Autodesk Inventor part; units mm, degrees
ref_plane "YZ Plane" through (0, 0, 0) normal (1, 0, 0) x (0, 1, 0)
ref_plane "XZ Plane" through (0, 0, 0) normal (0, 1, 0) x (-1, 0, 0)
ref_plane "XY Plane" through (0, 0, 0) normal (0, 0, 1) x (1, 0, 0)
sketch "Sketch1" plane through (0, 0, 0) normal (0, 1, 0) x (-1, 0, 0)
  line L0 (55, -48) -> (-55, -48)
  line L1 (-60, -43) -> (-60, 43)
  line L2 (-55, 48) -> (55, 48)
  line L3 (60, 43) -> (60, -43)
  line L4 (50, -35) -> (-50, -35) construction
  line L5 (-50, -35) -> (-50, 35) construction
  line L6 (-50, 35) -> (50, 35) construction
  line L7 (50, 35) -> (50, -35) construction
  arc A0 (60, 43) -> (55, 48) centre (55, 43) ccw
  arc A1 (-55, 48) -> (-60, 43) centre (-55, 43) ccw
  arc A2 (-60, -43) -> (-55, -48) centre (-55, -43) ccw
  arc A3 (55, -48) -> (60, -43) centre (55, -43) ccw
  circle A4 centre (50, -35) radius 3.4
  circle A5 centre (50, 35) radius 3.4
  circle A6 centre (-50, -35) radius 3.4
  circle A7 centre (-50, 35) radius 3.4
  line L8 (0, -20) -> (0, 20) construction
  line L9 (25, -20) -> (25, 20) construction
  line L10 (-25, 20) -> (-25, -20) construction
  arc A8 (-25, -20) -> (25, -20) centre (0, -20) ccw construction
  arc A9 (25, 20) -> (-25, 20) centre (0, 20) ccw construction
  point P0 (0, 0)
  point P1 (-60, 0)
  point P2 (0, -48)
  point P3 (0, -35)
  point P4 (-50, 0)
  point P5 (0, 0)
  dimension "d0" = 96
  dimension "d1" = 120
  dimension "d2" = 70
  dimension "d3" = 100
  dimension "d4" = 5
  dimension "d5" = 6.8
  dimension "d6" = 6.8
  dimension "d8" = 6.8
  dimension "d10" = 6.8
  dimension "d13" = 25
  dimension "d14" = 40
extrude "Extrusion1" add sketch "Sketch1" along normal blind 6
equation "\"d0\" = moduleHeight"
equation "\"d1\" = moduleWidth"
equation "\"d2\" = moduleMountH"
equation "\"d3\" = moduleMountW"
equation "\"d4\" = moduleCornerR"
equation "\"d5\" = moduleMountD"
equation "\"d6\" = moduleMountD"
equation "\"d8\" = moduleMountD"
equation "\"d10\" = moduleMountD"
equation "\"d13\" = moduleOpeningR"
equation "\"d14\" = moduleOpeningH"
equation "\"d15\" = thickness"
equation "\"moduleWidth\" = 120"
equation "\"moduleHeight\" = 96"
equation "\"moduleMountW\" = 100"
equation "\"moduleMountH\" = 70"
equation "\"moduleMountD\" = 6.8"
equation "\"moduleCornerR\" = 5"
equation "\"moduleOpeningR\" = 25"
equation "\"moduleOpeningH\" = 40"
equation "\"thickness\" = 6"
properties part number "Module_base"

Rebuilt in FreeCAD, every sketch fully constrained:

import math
import FreeCAD as App
import Part
import Sketcher

doc = App.newDocument("Part")
body = doc.addObject("PartDesign::Body", "Body")

# Sketch on XZ plane
sketch1 = body.newObject("Sketcher::SketchObject", "Sketch")
sketch1.AttachmentSupport = (doc.getObject("XZ_Plane"), [""])
sketch1.MapMode = "FlatFace"
sketch1.addGeometry([
    Part.LineSegment(App.Vector(55, -48, 0), App.Vector(-55, -48, 0)),  # 0
    Part.ArcOfCircle(Part.Circle(App.Vector(-55, -43, 0), App.Vector(0, 0, 1), 5), math.radians(180), math.radians(270)),  # 1
    Part.LineSegment(App.Vector(-60, -43, 0), App.Vector(-60, 43, 0)),  # 2
    Part.ArcOfCircle(Part.Circle(App.Vector(-55, 43, 0), App.Vector(0, 0, 1), 5), math.radians(90), math.radians(180)),  # 3
    Part.LineSegment(App.Vector(-55, 48, 0), App.Vector(55, 48, 0)),  # 4
    Part.ArcOfCircle(Part.Circle(App.Vector(55, 43, 0), App.Vector(0, 0, 1), 5), math.radians(0), math.radians(90)),  # 5
    Part.LineSegment(App.Vector(60, 43, 0), App.Vector(60, -43, 0)),  # 6
    Part.ArcOfCircle(Part.Circle(App.Vector(55, -43, 0), App.Vector(0, 0, 1), 5), math.radians(-90), math.radians(0)),  # 7
    Part.Circle(App.Vector(50, -35, 0), App.Vector(0, 0, 1), 3.4),  # 8
    Part.Circle(App.Vector(-50, -35, 0), App.Vector(0, 0, 1), 3.4),  # 9
    Part.Circle(App.Vector(50, 35, 0), App.Vector(0, 0, 1), 3.4),  # 10
    Part.Circle(App.Vector(-50, 35, 0), App.Vector(0, 0, 1), 3.4),  # 11
], False)
sketch1.addConstraint([
    Sketcher.Constraint("Tangent", 0, 2, 1, 2),
    Sketcher.Constraint("Tangent", 1, 1, 2, 1),
    Sketcher.Constraint("Tangent", 2, 2, 3, 2),
    Sketcher.Constraint("Tangent", 3, 1, 4, 1),
    Sketcher.Constraint("Tangent", 4, 2, 5, 2),
    Sketcher.Constraint("Tangent", 5, 1, 6, 1),
    Sketcher.Constraint("Tangent", 6, 2, 7, 2),
    Sketcher.Constraint("Tangent", 7, 1, 0, 1),
    Sketcher.Constraint("Horizontal", 0),
    Sketcher.Constraint("Vertical", 2),
    Sketcher.Constraint("Horizontal", 4),
    Sketcher.Constraint("Vertical", 6),
    Sketcher.Constraint("Equal", 1, 3),
    Sketcher.Constraint("Equal", 3, 5),
    Sketcher.Constraint("Equal", 5, 7),
    Sketcher.Constraint("Equal", 8, 9),
    Sketcher.Constraint("Equal", 9, 10),
    Sketcher.Constraint("Equal", 10, 11),
    Sketcher.Constraint("Symmetric", 1, 3, 5, 3, -1, 1),
    Sketcher.Constraint("Symmetric", 9, 3, 10, 3, -1, 1),
    Sketcher.Constraint("Symmetric", 8, 3, 11, 3, -1, 1),
    Sketcher.Constraint("Symmetric", 8, 3, 9, 3, -2),
    Sketcher.Constraint("Radius", 1, 5.0),
    Sketcher.Constraint("Diameter", 8, 6.8),
    Sketcher.Constraint("DistanceX", 8, 3, 7, 3, 5.0),
    Sketcher.Constraint("DistanceX", 9, 3, 8, 3, 100.0),
    Sketcher.Constraint("DistanceY", 8, 3, 10, 3, 70.0),
    Sketcher.Constraint("DistanceY", 2, 1, 2, 2, 86.0),
])
pad1 = body.newObject("PartDesign::Pad", "Pad")
pad1.Profile = sketch1
pad1.Length = 6
pad1.Reversed = True

doc.recompute()
